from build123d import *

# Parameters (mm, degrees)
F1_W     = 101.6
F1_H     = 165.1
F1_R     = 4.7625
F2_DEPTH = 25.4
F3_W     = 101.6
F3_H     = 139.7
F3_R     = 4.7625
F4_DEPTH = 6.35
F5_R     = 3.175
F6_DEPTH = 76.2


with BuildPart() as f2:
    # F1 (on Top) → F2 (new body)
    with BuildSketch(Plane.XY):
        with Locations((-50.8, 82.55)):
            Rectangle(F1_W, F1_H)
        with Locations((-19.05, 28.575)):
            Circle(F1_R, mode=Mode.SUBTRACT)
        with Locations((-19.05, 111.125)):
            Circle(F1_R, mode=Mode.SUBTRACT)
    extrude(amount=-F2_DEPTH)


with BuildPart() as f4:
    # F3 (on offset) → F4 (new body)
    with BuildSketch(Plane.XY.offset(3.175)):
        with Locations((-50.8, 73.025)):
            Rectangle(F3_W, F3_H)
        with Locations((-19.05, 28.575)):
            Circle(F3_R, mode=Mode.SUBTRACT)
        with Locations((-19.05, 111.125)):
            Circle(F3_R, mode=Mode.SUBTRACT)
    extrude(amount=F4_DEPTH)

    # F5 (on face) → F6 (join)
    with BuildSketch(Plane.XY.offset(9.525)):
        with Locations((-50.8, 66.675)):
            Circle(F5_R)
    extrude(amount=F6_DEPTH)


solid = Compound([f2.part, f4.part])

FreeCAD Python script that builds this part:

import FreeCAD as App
import Part
import Sketcher

V = App.Vector
Q = App.Units.Quantity


def add_polygon(sketch, points):
    """Adds a closed chain of lines whose ends are joined by coincident constraints."""
    first, n = sketch.GeometryCount, len(points)
    for a, b in zip(points, points[1:] + points[:1]):
        sketch.addGeometry(Part.LineSegment(App.Vector(*a, 0), App.Vector(*b, 0)), False)
    for i in range(n):
        sketch.addConstraint(Sketcher.Constraint("Coincident", first + i, 2, first + (i + 1) % n, 1))

doc = App.newDocument("Part")
params = doc.addObject("Spreadsheet::Sheet", "Params")
for row, (alias, value) in enumerate([
    ("sketch1_width", "4 in"),
    ("sketch1_diameter", "0.375 in"),
    ("sketch1_height", "6.5 in"),
    ("pad1_length", "1 in"),
    ("sketch2_width", "4 in"),
    ("sketch2_diameter", "0.375 in"),
    ("sketch2_height", "5.5 in"),
    ("pad2_length", "0.25 in"),
    ("sketch3_diameter", "0.25 in"),
    ("pad3_length", "3 in"),
], start=1):
    params.set(f"A{row}", alias)
    params.set(f"B{row}", "=" + value)
    params.setAlias(f"B{row}", alias)

body = doc.addObject("PartDesign::Body", "Body")

# Sketch on XY plane
sketch1 = doc.addObject("Sketcher::SketchObject", "Sketch")
body.addObject(sketch1)
sketch1.AttachmentSupport = (doc.XY_Plane, [""])
sketch1.MapMode = "FlatFace"
add_polygon(sketch1, [(-101.6, 165.1), (-101.6, 0), (0, 0), (0, 165.1)])  # lines 0-3
sketch1.addGeometry(Part.Circle(V(-19.05, 28.575, 0), V(0, 0, 1), 4.7625), False)  # 4
sketch1.addGeometry(Part.Circle(V(-19.05, 111.125, 0), V(0, 0, 1), 4.7625), False)  # 5
sketch1.addConstraint([
    Sketcher.Constraint("Vertical", 0),
    Sketcher.Constraint("Horizontal", 1),
    Sketcher.Constraint("Vertical", 2),
    Sketcher.Constraint("Horizontal", 3),
    Sketcher.Constraint("Coincident", 1, 2, -1, 1),
    Sketcher.Constraint("Equal", 4, 5),
    Sketcher.Constraint("Vertical", 4, 3, 5, 3),
    Sketcher.Constraint("DistanceX", 1, 1, 1, 2, Q("4 in")),
    Sketcher.Constraint("Diameter", 4, Q("0.375 in")),
    Sketcher.Constraint("DistanceY", 0, 2, 0, 1, Q("6.5 in")),
    Sketcher.Constraint("DistanceX", 4, 3, -1, 1, Q("0.75 in")),
    Sketcher.Constraint("DistanceY", 4, 3, 5, 3, Q("3.25 in")),
    Sketcher.Constraint("DistanceY", -1, 1, 4, 3, Q("1.125 in")),
])
sketch1.setExpression("Constraints[11]", "Params.sketch1_width")
sketch1.setExpression("Constraints[12]", "Params.sketch1_diameter")
sketch1.setExpression("Constraints[13]", "Params.sketch1_height")
pad1 = doc.addObject("PartDesign::Pad", "Pad")
body.addObject(pad1)
pad1.Profile = sketch1
pad1.setExpression("Length", "Params.pad1_length")
pad1.Reversed = True
body2 = doc.addObject("PartDesign::Body", "Body001")

# Sketch on XY plane
sketch2 = doc.addObject("Sketcher::SketchObject", "Sketch001")
body2.addObject(sketch2)
sketch2.AttachmentSupport = (doc.getObject("XY_Plane001"), [""])
sketch2.MapMode = "FlatFace"
sketch2.AttachmentOffset = App.Placement(V(0, 0, 0.125 * 25.4), App.Rotation())
add_polygon(sketch2, [(-101.6, 142.875), (-101.6, 3.175), (0, 3.175), (0, 142.875)])  # lines 0-3
sketch2.addGeometry(Part.Circle(V(-19.05, 28.575, 0), V(0, 0, 1), 4.7625), False)  # 4
sketch2.addGeometry(Part.Circle(V(-19.05, 111.125, 0), V(0, 0, 1), 4.7625), False)  # 5
sketch2.addConstraint([
    Sketcher.Constraint("Vertical", 0),
    Sketcher.Constraint("Horizontal", 1),
    Sketcher.Constraint("Vertical", 2),
    Sketcher.Constraint("Horizontal", 3),
    Sketcher.Constraint("Equal", 4, 5),
    Sketcher.Constraint("PointOnObject", 1, 2, -2),
    Sketcher.Constraint("Vertical", 4, 3, 5, 3),
    Sketcher.Constraint("DistanceX", 1, 1, 1, 2, Q("4 in")),
    Sketcher.Constraint("Diameter", 4, Q("0.375 in")),
    Sketcher.Constraint("DistanceY", 0, 2, 0, 1, Q("5.5 in")),
    Sketcher.Constraint("DistanceY", 0, 2, 4, 3, Q("1 in")),
    Sketcher.Constraint("DistanceX", 4, 3, -1, 1, Q("0.75 in")),
    Sketcher.Constraint("DistanceY", 4, 3, 5, 3, Q("3.25 in")),
    Sketcher.Constraint("DistanceY", -1, 1, 4, 3, Q("1.125 in")),
])
sketch2.setExpression("Constraints[11]", "Params.sketch2_width")
sketch2.setExpression("Constraints[12]", "Params.sketch2_diameter")
sketch2.setExpression("Constraints[13]", "Params.sketch2_height")
pad2 = doc.addObject("PartDesign::Pad", "Pad001")
body2.addObject(pad2)
pad2.Profile = sketch2
pad2.setExpression("Length", "Params.pad2_length")

# Sketch on XY plane
sketch3 = doc.addObject("Sketcher::SketchObject", "Sketch002")
body2.addObject(sketch3)
sketch3.AttachmentSupport = (doc.getObject("XY_Plane001"), [""])
sketch3.MapMode = "FlatFace"
sketch3.AttachmentOffset = App.Placement(V(0, 0, 0.375 * 25.4), App.Rotation())
sketch3.addGeometry(Part.Circle(V(-50.8, 66.675, 0), V(0, 0, 1), 3.175), False)
sketch3.addConstraint([
    Sketcher.Constraint("Diameter", 0, Q("0.25 in")),
    Sketcher.Constraint("DistanceX", 0, 3, -1, 1, Q("2 in")),
    Sketcher.Constraint("DistanceY", -1, 1, 0, 3, Q("2.625 in")),
])
sketch3.setExpression("Constraints[0]", "Params.sketch3_diameter")
pad3 = doc.addObject("PartDesign::Pad", "Pad002")
body2.addObject(pad3)
pad3.Profile = sketch3
pad3.setExpression("Length", "Params.pad3_length")

doc.recompute()
